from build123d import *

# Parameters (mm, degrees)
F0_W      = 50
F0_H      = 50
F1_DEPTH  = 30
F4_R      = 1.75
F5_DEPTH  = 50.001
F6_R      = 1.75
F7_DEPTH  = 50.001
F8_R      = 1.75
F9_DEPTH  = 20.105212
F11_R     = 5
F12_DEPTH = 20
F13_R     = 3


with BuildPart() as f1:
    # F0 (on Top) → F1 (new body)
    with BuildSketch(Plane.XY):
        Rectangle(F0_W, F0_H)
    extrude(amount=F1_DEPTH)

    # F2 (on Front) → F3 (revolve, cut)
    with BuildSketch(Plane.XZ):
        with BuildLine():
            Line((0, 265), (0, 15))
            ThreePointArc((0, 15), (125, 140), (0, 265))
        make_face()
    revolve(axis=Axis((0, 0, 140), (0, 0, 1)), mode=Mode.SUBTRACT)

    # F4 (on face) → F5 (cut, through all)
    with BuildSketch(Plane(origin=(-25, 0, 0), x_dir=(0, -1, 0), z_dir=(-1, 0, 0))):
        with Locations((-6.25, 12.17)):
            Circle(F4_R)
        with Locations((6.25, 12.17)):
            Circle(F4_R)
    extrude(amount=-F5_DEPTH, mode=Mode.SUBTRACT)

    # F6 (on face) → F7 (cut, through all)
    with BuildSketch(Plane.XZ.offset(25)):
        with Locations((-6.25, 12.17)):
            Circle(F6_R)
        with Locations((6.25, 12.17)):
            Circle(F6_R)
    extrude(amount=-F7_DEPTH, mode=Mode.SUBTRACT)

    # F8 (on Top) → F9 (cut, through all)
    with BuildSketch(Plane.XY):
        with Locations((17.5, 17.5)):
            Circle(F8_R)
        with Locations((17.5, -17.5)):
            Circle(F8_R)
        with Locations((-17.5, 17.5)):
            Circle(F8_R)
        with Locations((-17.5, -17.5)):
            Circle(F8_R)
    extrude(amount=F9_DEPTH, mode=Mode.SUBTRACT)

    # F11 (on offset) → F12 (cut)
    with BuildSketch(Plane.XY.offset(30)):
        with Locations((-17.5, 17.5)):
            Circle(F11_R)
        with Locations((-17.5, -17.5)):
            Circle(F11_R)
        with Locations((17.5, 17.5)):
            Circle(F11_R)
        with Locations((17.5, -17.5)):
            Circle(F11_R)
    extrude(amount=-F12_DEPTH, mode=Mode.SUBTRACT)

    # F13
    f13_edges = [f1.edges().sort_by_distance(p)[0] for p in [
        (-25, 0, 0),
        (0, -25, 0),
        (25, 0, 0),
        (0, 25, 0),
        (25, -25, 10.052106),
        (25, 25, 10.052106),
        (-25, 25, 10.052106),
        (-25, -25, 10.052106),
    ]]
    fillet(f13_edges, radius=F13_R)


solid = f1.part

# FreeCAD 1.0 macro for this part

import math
import FreeCAD as App
import Part
import Sketcher

V = App.Vector


def edges_at(feature, points):
    """Names of the edges that pass closest to the given points."""
    edges = feature.Shape.Edges
    near = lambda p: min(range(len(edges)), key=lambda i: edges[i].distToShape(Part.Vertex(*p))[0])
    return sorted({f"Edge{near(p) + 1}" for p in points})

doc = App.newDocument("Part")
body = doc.addObject("PartDesign::Body", "Body")

# Sketch on XY plane
sketch1 = body.newObject("Sketcher::SketchObject", "Sketch")
sketch1.AttachmentSupport = (doc.getObject("XY_Plane"), [""])
sketch1.MapMode = "FlatFace"
sketch1.addGeometry(Part.LineSegment(V(-25, 25, 0), V(-25, -25, 0)), False)
sketch1.addGeometry(Part.LineSegment(V(-25, -25, 0), V(25, -25, 0)), False)
sketch1.addGeometry(Part.LineSegment(V(25, -25, 0), V(25, 25, 0)), False)
sketch1.addGeometry(Part.LineSegment(V(25, 25, 0), V(-25, 25, 0)), False)
sketch1.addConstraint(Sketcher.Constraint("Coincident", 0, 2, 1, 1))
sketch1.addConstraint(Sketcher.Constraint("Coincident", 1, 2, 2, 1))
sketch1.addConstraint(Sketcher.Constraint("Coincident", 2, 2, 3, 1))
sketch1.addConstraint(Sketcher.Constraint("Coincident", 3, 2, 0, 1))
sketch1.addConstraint(Sketcher.Constraint("Vertical", 0))
sketch1.addConstraint(Sketcher.Constraint("Horizontal", 1))
sketch1.addConstraint(Sketcher.Constraint("Vertical", 2))
sketch1.addConstraint(Sketcher.Constraint("Horizontal", 3))
sketch1.addConstraint(Sketcher.Constraint("Symmetric", 0, 2, 2, 2, -1, 1))
sketch1.addConstraint(Sketcher.Constraint("Equal", 3, 0))
sketch1.addConstraint(Sketcher.Constraint("DistanceX", 1, 1, 1, 2, 50.0))
pad1 = body.newObject("PartDesign::Pad", "Pad")
pad1.Profile = sketch1
pad1.Length = 30

# Sketch on XZ plane
sketch2 = body.newObject("Sketcher::SketchObject", "Sketch001")
sketch2.AttachmentSupport = (doc.getObject("XZ_Plane"), [""])
sketch2.MapMode = "FlatFace"
sketch2.addGeometry(Part.LineSegment(V(0, 265, 0), V(0, 15, 0)), False)
sketch2.addGeometry(Part.ArcOfCircle(Part.Circle(V(0, 140, 0), V(0, 0, 1), 125), math.radians(-90), math.radians(90)), False)
sketch2.addConstraint(Sketcher.Constraint("Coincident", 0, 1, 1, 2))
sketch2.addConstraint(Sketcher.Constraint("Coincident", 1, 1, 0, 2))
sketch2.addConstraint(Sketcher.Constraint("Vertical", 0))
sketch2.addConstraint(Sketcher.Constraint("PointOnObject", 1, 3, -2))
sketch2.addConstraint(Sketcher.Constraint("PointOnObject", 0, 1, -2))
sketch2.addConstraint(Sketcher.Constraint("Radius", 1, 125.0))
sketch2.addConstraint(Sketcher.Constraint("DistanceY", -1, 1, 1, 3, 140.0))
groove = body.newObject("PartDesign::Groove", "Groove")
groove.Profile = sketch2
groove.ReferenceAxis = (sketch2, ["V_Axis"])
groove.Angle = 360

# Sketch on YZ plane
sketch3 = body.newObject("Sketcher::SketchObject", "Sketch002")
sketch3.AttachmentSupport = (doc.getObject("YZ_Plane"), [""])
sketch3.MapMode = "FlatFace"
sketch3.AttachmentOffset = App.Placement(V(0, 0, -25), App.Rotation())
sketch3.addGeometry(Part.Circle(V(6.2, 12.2, 0), V(0, 0, 1), 1.8), False)
sketch3.addGeometry(Part.Circle(V(-6.2, 12.2, 0), V(0, 0, 1), 1.8), False)
sketch3.addConstraint(Sketcher.Constraint("Equal", 0, 1))
sketch3.addConstraint(Sketcher.Constraint("Symmetric", 0, 3, 1, 3, -2))
sketch3.addConstraint(Sketcher.Constraint("Diameter", 0, 3.5))
sketch3.addConstraint(Sketcher.Constraint("DistanceX", 1, 3, 0, 3, 12.5))
sketch3.addConstraint(Sketcher.Constraint("DistanceY", -1, 1, 0, 3, 12.17))
pocket1 = body.newObject("PartDesign::Pocket", "Pocket")
pocket1.Profile = sketch3
pocket1.Type = "ThroughAll"
pocket1.Reversed = True

# Sketch on XZ plane
sketch4 = body.newObject("Sketcher::SketchObject", "Sketch003")
sketch4.AttachmentSupport = (doc.getObject("XZ_Plane"), [""])
sketch4.MapMode = "FlatFace"
sketch4.AttachmentOffset = App.Placement(V(0, 0, 25), App.Rotation())
sketch4.addGeometry(Part.Circle(V(-6.2, 12.2, 0), V(0, 0, 1), 1.8), False)
sketch4.addGeometry(Part.Circle(V(6.2, 12.2, 0), V(0, 0, 1), 1.8), False)
sketch4.addConstraint(Sketcher.Constraint("Equal", 0, 1))
sketch4.addConstraint(Sketcher.Constraint("Symmetric", 0, 3, 1, 3, -2))
sketch4.addConstraint(Sketcher.Constraint("Diameter", 0, 3.5))
sketch4.addConstraint(Sketcher.Constraint("DistanceX", 0, 3, 1, 3, 12.5))
sketch4.addConstraint(Sketcher.Constraint("DistanceY", -1, 1, 0, 3, 12.17))
pocket2 = body.newObject("PartDesign::Pocket", "Pocket001")
pocket2.Profile = sketch4
pocket2.Type = "ThroughAll"

# Sketch on XY plane
sketch5 = body.newObject("Sketcher::SketchObject", "Sketch004")
sketch5.AttachmentSupport = (doc.getObject("XY_Plane"), [""])
sketch5.MapMode = "FlatFace"
sketch5.addGeometry(Part.Circle(V(17.5, 17.5, 0), V(0, 0, 1), 1.8), False)
sketch5.addGeometry(Part.Circle(V(17.5, -17.5, 0), V(0, 0, 1), 1.8), False)
sketch5.addGeometry(Part.Circle(V(-17.5, 17.5, 0), V(0, 0, 1), 1.8), False)
sketch5.addGeometry(Part.Circle(V(-17.5, -17.5, 0), V(0, 0, 1), 1.8), False)
sketch5.addConstraint(Sketcher.Constraint("Equal", 0, 1))
sketch5.addConstraint(Sketcher.Constraint("Equal", 1, 2))
sketch5.addConstraint(Sketcher.Constraint("Equal", 2, 3))
sketch5.addConstraint(Sketcher.Constraint("Symmetric", 1, 3, 2, 3, -1, 1))
sketch5.addConstraint(Sketcher.Constraint("Symmetric", 0, 3, 3, 3, -1, 1))
sketch5.addConstraint(Sketcher.Constraint("Symmetric", 0, 3, 2, 3, -2))
sketch5.addConstraint(Sketcher.Constraint("Diameter", 0, 3.5))
sketch5.addConstraint(Sketcher.Constraint("DistanceY", 1, 3, 0, 3, 35.0))
sketch5.addConstraint(Sketcher.Constraint("DistanceX", 2, 3, 0, 3, 35.0))
pocket3 = body.newObject("PartDesign::Pocket", "Pocket002")
pocket3.Profile = sketch5
pocket3.Type = "ThroughAll"
pocket3.Reversed = True

# Sketch on XY plane
sketch6 = body.newObject("Sketcher::SketchObject", "Sketch005")
sketch6.AttachmentSupport = (doc.getObject("XY_Plane"), [""])
sketch6.MapMode = "FlatFace"
sketch6.AttachmentOffset = App.Placement(V(0, 0, 30), App.Rotation())
sketch6.addGeometry(Part.Circle(V(-18, 18, 0), V(0, 0, 1), 5), False)
sketch6.addGeometry(Part.Circle(V(-18, -18, 0), V(0, 0, 1), 5), False)
sketch6.addGeometry(Part.Circle(V(18, 18, 0), V(0, 0, 1), 5), False)
sketch6.addGeometry(Part.Circle(V(18, -18, 0), V(0, 0, 1), 5), False)
sketch6.addConstraint(Sketcher.Constraint("Equal", 0, 1))
sketch6.addConstraint(Sketcher.Constraint("Equal", 1, 2))
sketch6.addConstraint(Sketcher.Constraint("Equal", 2, 3))
sketch6.addConstraint(Sketcher.Constraint("Symmetric", 1, 3, 2, 3, -1, 1))
sketch6.addConstraint(Sketcher.Constraint("Symmetric", 0, 3, 3, 3, -1, 1))
sketch6.addConstraint(Sketcher.Constraint("Symmetric", 0, 3, 2, 3, -2))
sketch6.addConstraint(Sketcher.Constraint("Diameter", 0, 10.0))
sketch6.addConstraint(Sketcher.Constraint("DistanceY", 1, 3, 0, 3, 35.0))
sketch6.addConstraint(Sketcher.Constraint("DistanceX", 0, 3, 2, 3, 35.0))
pocket4 = body.newObject("PartDesign::Pocket", "Pocket003")
pocket4.Profile = sketch6
pocket4.Length = 20
doc.recompute()

fillet = body.newObject("PartDesign::Fillet", "Fillet")
fillet.Base = (pocket4, edges_at(pocket4, [
    (-25, 0, 0),
    (0, -25, 0),
    (25, 0, 0),
    (0, 25, 0),
    (25, -25, 10.052),
    (25, 25, 10.052),
    (-25, 25, 10.052),
    (-25, -25, 10.052),
]))
fillet.Radius = 3

doc.recompute()
